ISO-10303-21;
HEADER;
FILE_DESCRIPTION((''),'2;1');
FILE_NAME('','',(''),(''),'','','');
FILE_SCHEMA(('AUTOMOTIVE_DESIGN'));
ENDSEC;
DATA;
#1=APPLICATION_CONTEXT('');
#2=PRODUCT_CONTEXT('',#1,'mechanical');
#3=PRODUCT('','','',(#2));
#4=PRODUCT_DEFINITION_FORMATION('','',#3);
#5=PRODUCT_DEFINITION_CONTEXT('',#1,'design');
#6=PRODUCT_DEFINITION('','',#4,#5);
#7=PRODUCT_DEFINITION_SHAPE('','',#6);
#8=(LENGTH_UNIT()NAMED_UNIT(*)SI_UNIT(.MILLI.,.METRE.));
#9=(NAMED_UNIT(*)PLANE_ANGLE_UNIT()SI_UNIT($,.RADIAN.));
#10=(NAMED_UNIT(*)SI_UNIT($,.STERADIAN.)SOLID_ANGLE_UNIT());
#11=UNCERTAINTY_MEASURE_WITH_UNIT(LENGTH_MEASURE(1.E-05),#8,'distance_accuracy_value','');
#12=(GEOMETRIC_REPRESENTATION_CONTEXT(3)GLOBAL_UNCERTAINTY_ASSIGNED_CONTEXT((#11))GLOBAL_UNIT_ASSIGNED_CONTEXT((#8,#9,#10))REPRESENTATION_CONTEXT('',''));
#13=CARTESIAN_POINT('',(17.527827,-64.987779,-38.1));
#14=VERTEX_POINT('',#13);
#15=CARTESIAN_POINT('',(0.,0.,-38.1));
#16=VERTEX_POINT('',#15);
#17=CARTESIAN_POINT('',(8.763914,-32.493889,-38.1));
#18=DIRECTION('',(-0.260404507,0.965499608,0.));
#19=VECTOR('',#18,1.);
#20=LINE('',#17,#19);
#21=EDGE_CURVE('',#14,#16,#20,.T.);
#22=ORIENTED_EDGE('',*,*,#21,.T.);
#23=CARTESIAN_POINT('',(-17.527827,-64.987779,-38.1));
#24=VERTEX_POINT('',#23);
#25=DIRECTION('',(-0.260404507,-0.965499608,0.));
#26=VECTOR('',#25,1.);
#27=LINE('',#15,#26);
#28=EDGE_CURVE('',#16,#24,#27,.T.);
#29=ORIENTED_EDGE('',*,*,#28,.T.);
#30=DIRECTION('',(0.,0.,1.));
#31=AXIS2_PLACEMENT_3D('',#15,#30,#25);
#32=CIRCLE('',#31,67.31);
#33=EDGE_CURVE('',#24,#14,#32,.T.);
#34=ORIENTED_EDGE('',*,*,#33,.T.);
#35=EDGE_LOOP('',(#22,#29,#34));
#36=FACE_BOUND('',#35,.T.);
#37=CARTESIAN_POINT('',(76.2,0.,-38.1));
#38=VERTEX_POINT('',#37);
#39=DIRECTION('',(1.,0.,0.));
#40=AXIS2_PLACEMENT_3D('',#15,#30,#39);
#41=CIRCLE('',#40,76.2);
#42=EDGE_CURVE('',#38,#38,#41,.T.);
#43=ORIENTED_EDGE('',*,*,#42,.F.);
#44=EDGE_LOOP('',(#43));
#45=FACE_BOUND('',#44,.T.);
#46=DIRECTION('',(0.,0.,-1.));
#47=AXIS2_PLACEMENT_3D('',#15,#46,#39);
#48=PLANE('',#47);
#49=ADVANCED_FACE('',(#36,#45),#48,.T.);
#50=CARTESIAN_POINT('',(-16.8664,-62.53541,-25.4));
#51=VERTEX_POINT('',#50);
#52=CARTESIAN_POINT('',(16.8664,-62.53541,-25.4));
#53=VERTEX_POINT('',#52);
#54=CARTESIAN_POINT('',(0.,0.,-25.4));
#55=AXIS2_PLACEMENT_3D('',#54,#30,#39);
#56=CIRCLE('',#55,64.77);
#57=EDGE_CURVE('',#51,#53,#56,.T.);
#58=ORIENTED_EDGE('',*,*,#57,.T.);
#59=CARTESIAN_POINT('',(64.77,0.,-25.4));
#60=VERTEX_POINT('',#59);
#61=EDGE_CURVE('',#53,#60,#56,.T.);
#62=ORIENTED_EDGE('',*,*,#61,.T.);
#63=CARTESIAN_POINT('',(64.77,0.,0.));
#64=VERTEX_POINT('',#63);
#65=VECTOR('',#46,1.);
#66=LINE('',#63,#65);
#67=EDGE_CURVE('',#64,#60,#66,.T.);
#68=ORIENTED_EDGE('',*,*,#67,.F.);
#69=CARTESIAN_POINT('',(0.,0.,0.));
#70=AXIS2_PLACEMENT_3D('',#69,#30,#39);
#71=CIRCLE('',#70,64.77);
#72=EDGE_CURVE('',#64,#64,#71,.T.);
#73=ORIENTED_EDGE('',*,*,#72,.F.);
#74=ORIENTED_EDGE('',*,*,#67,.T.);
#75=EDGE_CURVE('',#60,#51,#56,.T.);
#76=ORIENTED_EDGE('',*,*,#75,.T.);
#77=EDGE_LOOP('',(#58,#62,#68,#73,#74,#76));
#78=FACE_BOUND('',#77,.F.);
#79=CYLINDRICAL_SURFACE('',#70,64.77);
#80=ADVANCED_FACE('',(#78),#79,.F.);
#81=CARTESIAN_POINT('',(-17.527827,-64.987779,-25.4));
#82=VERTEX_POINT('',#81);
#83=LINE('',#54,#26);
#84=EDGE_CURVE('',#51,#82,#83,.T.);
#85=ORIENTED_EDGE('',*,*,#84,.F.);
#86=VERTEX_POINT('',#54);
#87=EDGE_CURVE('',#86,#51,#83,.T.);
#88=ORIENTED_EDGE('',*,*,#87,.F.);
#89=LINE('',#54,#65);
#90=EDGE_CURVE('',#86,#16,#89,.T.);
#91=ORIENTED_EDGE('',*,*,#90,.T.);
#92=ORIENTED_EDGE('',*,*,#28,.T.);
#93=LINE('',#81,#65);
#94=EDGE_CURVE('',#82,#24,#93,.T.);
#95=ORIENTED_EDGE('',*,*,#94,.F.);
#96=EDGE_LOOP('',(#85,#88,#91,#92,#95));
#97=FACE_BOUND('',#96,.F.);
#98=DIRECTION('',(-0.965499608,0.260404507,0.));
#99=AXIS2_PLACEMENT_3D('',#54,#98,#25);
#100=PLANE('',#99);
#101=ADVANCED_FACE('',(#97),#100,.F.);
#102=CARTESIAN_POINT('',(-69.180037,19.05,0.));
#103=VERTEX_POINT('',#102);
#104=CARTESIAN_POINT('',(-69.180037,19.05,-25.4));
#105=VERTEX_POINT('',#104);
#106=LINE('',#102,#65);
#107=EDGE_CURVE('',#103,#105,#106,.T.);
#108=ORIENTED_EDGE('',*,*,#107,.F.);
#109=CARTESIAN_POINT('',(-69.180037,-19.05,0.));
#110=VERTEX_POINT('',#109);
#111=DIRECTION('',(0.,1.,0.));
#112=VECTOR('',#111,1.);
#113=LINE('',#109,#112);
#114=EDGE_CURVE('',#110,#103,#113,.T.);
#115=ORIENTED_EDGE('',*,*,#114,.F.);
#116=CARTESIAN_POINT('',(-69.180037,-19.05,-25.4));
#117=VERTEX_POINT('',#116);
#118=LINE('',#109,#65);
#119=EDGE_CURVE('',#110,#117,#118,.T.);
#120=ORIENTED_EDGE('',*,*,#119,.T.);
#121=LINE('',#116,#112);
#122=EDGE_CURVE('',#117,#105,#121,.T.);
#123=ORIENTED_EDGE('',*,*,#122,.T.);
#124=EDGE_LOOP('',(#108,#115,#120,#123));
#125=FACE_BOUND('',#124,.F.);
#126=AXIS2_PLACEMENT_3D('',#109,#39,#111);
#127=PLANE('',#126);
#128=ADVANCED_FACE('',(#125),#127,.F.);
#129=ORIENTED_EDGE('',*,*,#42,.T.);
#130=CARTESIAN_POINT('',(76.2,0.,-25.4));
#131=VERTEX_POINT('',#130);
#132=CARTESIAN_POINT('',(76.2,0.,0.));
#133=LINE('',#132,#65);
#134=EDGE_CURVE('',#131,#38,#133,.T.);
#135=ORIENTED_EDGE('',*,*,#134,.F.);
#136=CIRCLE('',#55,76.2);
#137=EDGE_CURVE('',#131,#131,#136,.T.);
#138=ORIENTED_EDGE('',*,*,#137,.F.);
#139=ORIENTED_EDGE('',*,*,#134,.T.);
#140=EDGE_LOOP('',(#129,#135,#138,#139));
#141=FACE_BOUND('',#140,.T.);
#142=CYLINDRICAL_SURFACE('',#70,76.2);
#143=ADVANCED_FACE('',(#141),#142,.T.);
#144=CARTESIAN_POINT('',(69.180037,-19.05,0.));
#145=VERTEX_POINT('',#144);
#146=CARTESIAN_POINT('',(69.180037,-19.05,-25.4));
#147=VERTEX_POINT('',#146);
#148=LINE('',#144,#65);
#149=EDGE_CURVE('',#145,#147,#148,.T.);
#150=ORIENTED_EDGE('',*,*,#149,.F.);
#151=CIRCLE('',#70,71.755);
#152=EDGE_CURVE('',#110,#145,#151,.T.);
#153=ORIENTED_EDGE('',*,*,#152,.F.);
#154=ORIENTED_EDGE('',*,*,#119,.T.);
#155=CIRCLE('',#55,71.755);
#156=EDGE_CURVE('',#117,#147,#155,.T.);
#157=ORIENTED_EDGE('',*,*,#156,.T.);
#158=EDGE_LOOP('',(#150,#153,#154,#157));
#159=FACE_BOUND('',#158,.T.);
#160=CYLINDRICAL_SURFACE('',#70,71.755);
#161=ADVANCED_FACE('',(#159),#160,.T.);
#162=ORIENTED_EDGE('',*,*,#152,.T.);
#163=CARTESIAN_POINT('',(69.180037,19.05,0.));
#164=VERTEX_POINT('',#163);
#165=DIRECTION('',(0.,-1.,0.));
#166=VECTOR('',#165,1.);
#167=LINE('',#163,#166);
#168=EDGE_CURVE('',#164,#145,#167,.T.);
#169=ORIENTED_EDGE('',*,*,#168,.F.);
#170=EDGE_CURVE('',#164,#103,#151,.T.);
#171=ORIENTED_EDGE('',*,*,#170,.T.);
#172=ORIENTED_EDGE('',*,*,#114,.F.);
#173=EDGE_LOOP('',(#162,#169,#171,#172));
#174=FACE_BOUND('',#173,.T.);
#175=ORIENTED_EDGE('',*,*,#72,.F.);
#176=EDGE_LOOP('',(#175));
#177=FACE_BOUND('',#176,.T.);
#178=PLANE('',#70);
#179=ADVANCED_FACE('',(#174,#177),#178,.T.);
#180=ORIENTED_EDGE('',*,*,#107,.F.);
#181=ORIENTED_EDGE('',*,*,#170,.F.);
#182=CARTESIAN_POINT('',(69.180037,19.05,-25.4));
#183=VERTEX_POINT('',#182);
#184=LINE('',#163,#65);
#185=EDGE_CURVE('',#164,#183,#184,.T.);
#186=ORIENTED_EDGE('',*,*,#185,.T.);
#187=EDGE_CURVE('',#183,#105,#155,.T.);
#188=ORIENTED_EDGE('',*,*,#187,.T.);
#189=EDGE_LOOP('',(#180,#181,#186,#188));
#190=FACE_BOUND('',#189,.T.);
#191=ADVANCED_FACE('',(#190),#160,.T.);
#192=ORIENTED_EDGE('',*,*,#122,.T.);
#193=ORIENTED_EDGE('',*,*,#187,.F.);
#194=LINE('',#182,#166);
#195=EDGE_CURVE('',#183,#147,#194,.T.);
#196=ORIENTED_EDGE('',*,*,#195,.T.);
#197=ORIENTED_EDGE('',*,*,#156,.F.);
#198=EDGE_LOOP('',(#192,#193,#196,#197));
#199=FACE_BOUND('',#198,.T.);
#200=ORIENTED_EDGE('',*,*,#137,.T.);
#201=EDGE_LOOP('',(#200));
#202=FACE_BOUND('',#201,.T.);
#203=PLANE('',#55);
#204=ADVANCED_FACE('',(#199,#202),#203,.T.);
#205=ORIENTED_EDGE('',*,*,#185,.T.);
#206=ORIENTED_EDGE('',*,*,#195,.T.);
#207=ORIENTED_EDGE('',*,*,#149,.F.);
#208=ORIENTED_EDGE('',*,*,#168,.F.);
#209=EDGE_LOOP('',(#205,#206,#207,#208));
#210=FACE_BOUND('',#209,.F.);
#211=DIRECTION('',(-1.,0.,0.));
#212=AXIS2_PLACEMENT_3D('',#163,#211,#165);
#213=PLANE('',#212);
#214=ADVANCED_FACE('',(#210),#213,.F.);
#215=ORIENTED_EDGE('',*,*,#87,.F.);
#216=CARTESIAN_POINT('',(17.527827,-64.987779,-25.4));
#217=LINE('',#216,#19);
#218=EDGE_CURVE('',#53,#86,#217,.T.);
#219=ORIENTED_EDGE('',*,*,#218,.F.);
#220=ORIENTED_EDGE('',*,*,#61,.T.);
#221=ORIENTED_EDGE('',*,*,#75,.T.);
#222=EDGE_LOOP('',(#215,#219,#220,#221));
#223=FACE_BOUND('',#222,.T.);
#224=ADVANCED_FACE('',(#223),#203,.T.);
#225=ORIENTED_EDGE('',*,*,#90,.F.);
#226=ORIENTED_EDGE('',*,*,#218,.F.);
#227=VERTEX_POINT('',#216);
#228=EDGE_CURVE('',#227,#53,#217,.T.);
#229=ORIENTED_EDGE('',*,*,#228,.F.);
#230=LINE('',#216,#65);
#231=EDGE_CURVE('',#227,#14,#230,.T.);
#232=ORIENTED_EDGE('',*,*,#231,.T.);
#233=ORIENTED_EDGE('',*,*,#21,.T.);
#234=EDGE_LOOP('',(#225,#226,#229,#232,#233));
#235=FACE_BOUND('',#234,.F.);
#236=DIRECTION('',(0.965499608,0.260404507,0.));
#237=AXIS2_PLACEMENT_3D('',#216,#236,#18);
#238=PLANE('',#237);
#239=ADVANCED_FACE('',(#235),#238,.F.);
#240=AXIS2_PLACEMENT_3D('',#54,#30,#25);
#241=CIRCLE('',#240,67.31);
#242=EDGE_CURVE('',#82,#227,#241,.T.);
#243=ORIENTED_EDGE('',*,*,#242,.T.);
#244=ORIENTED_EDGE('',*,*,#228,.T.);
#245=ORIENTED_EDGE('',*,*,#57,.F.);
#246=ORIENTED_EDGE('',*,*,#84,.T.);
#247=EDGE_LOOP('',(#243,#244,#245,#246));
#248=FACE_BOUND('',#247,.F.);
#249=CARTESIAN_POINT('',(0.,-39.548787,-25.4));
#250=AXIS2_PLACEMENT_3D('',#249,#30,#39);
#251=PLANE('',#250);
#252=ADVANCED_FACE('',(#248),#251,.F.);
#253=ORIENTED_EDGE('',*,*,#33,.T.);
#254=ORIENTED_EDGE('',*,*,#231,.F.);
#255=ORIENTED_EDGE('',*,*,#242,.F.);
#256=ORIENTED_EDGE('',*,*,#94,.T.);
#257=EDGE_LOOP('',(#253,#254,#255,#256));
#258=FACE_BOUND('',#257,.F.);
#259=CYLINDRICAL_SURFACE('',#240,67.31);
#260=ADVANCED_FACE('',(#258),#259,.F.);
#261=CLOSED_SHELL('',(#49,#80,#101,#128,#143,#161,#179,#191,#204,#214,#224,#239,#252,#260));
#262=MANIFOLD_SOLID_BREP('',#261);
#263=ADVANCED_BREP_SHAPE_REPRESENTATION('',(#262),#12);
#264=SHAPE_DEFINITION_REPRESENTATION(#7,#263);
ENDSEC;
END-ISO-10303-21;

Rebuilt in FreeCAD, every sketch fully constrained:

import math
import FreeCAD as App
import Part
import Sketcher
Q = App.Units.Quantity

doc = App.newDocument("Part")
body = doc.addObject("PartDesign::Body", "Body")

# Sketch on XY plane
sketch1 = body.newObject("Sketcher::SketchObject", "Sketch")
sketch1.AttachmentSupport = (doc.getObject("XY_Plane"), [""])
sketch1.MapMode = "FlatFace"
sketch1.addGeometry(Part.Circle(App.Vector(0, 0, 0), App.Vector(0, 0, 1), 76), False)
sketch1.addConstraint(Sketcher.Constraint("Coincident", 0, 3, -1, 1))
sketch1.addConstraint(Sketcher.Constraint("Diameter", 0, Q("6 in")))
pad1 = body.newObject("PartDesign::Pad", "Pad")
pad1.Profile = sketch1
pad1.Length = Q("3.5 in")
pad1.Reversed = True

# Sketch on XY plane
sketch2 = body.newObject("Sketcher::SketchObject", "Sketch001")
sketch2.AttachmentSupport = (doc.getObject("XY_Plane"), [""])
sketch2.MapMode = "FlatFace"
sketch2.addGeometry(Part.Circle(App.Vector(0, 0, 0), App.Vector(0, 0, 1), 76), False)
sketch2.addGeometry(Part.Circle(App.Vector(0, 0, 0), App.Vector(0, 0, 1), 72), False)
sketch2.addConstraint(Sketcher.Constraint("Coincident", 0, 3, -1, 1))
sketch2.addConstraint(Sketcher.Constraint("Coincident", 1, 3, -1, 1))
sketch2.addConstraint(Sketcher.Constraint("Diameter", 0, Q("6 in")))
sketch2.addConstraint(Sketcher.Constraint("Diameter", 1, Q("5.65 in")))
pocket1 = body.newObject("PartDesign::Pocket", "Pocket")
pocket1.Profile = sketch2
pocket1.Length = Q("1 in")

# Sketch on XY plane
sketch3 = body.newObject("Sketcher::SketchObject", "Sketch002")
sketch3.AttachmentSupport = (doc.getObject("XY_Plane"), [""])
sketch3.MapMode = "FlatFace"
sketch3.addGeometry(Part.Circle(App.Vector(0, 0, 0), App.Vector(0, 0, 1), 65), False)
sketch3.addConstraint(Sketcher.Constraint("Coincident", 0, 3, -1, 1))
sketch3.addConstraint(Sketcher.Constraint("Diameter", 0, Q("5.1 in")))
pocket2 = body.newObject("PartDesign::Pocket", "Pocket001")
pocket2.Profile = sketch3
pocket2.Length = Q("1 in")

# Sketch on XY plane
sketch4 = body.newObject("Sketcher::SketchObject", "Sketch003")
sketch4.AttachmentSupport = (doc.getObject("XY_Plane"), [""])
sketch4.MapMode = "FlatFace"
sketch4.AttachmentOffset = App.Placement(App.Vector(0, 0, -1 * 25.4), App.Rotation())
sketch4.addGeometry(Part.LineSegment(App.Vector(18, -65, 0), App.Vector(0, 0, 0)), False)
sketch4.addGeometry(Part.LineSegment(App.Vector(0, 0, 0), App.Vector(-18, -65, 0)), False)
sketch4.addGeometry(Part.ArcOfCircle(Part.Circle(App.Vector(0, 0, 0), App.Vector(0, 0, 1), 67), math.radians(-105), math.radians(-75)), False)
sketch4.addConstraint(Sketcher.Constraint("Coincident", 0, 2, 1, 1))
sketch4.addConstraint(Sketcher.Constraint("Coincident", 1, 2, 2, 1))
sketch4.addConstraint(Sketcher.Constraint("Coincident", 2, 2, 0, 1))
sketch4.addConstraint(Sketcher.Constraint("Coincident", 2, 3, -1, 1))
sketch4.addConstraint(Sketcher.Constraint("Coincident", 0, 2, -1, 1))
sketch4.addConstraint(Sketcher.Constraint("Horizontal", 1, 2, 2, 2))
sketch4.addConstraint(Sketcher.Constraint("Radius", 2, Q("2.65 in")))
sketch4.addConstraint(Sketcher.Constraint("DistanceY", 1, 2, -1, 1, 64.987779))
pocket3 = body.newObject("PartDesign::Pocket", "Pocket002")
pocket3.Profile = sketch4
pocket3.Type = "ThroughAll"

# Sketch on XY plane
sketch5 = body.newObject("Sketcher::SketchObject", "Sketch004")
sketch5.AttachmentSupport = (doc.getObject("XY_Plane"), [""])
sketch5.MapMode = "FlatFace"
sketch5.addGeometry(Part.ArcOfCircle(Part.Circle(App.Vector(0, 0, 0), App.Vector(0, 0, 1), 72), math.radians(165), math.radians(195)), False)
sketch5.addGeometry(Part.LineSegment(App.Vector(-69, -19, 0), App.Vector(-69, 19, 0)), False)
sketch5.addGeometry(Part.ArcOfCircle(Part.Circle(App.Vector(0, 0, 0), App.Vector(0, 0, 1), 72), math.radians(0), math.radians(15.4)), False)
sketch5.addGeometry(Part.LineSegment(App.Vector(69, 19, 0), App.Vector(69, -19, 0)), False)
sketch5.addGeometry(Part.ArcOfCircle(Part.Circle(App.Vector(0, 0, 0), App.Vector(0, 0, 1), 72), math.radians(-15.4), math.radians(0)), False)
sketch5.addConstraint(Sketcher.Constraint("Coincident", 0, 1, 1, 2))
sketch5.addConstraint(Sketcher.Constraint("Coincident", 1, 1, 0, 2))
sketch5.addConstraint(Sketcher.Constraint("Coincident", 2, 2, 3, 1))
sketch5.addConstraint(Sketcher.Constraint("Coincident", 3, 2, 4, 1))
sketch5.addConstraint(Sketcher.Constraint("Tangent", 4, 2, 2, 1))
sketch5.addConstraint(Sketcher.Constraint("Vertical", 1))
sketch5.addConstraint(Sketcher.Constraint("Vertical", 3))
sketch5.addConstraint(Sketcher.Constraint("Coincident", 0, 3, -1, 1))
sketch5.addConstraint(Sketcher.Constraint("Coincident", 2, 3, -1, 1))
sketch5.addConstraint(Sketcher.Constraint("Equal", 0, 2))
sketch5.addConstraint(Sketcher.Constraint("Equal", 2, 4))
sketch5.addConstraint(Sketcher.Constraint("PointOnObject", 4, 2, -1))
sketch5.addConstraint(Sketcher.Constraint("Horizontal", 0, 1, 2, 2))
sketch5.addConstraint(Sketcher.Constraint("DistanceY", 1, 1, 1, 2, Q("1.5 in")))
sketch5.addConstraint(Sketcher.Constraint("Radius", 0, Q("2.825 in")))
pocket4 = body.newObject("PartDesign::Pocket", "Pocket003")
pocket4.Profile = sketch5
pocket4.Length = Q("1 in")

# Sketch on XY plane
sketch6 = body.newObject("Sketcher::SketchObject", "Sketch005")
sketch6.AttachmentSupport = (doc.getObject("XY_Plane"), [""])
sketch6.MapMode = "FlatFace"
sketch6.AttachmentOffset = App.Placement(App.Vector(0, 0, -3.5 * 25.4), App.Rotation())
sketch6.addGeometry(Part.Circle(App.Vector(0, 0, 0), App.Vector(0, 0, 1), 106), False)
sketch6.addConstraint(Sketcher.Constraint("Coincident", 0, 3, -1, 1))
sketch6.addConstraint(Sketcher.Constraint("Diameter", 0, 212.620147))
pocket5 = body.newObject("PartDesign::Pocket", "Pocket004")
pocket5.Profile = sketch6
pocket5.Length = Q("2 in")
pocket5.Reversed = True

doc.recompute()
